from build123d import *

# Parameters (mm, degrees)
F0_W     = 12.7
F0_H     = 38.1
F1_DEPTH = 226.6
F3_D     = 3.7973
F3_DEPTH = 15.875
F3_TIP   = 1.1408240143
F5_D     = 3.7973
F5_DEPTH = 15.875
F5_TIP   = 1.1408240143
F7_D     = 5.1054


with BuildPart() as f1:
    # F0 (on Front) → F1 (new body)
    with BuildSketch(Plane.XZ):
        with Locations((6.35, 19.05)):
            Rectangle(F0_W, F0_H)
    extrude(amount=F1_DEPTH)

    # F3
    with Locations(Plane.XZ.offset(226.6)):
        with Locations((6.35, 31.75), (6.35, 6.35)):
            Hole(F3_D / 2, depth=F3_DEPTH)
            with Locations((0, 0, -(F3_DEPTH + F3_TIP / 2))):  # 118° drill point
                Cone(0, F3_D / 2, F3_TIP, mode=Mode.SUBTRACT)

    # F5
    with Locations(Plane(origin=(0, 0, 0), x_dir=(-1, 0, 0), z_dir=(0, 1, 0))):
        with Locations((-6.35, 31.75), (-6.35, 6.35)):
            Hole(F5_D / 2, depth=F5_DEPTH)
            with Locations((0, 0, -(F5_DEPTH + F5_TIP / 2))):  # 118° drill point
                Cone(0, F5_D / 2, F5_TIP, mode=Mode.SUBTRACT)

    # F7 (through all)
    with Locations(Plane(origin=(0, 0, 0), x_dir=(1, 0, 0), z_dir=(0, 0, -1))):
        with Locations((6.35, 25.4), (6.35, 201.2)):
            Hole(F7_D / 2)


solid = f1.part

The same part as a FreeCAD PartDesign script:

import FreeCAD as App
import Part
import Sketcher
from FreeCAD import Vector
Q = App.Units.Quantity

doc = App.newDocument("Part")
body = doc.addObject("PartDesign::Body", "Body")

# Sketch on XZ plane
sketch1 = body.newObject("Sketcher::SketchObject", "Sketch")
sketch1.AttachmentSupport = (doc.getObject("XZ_Plane"), [""])
sketch1.MapMode = "FlatFace"
sketch1.addGeometry([
    Part.LineSegment(Vector(0, 38.1, 0), Vector(0, 0, 0)),
    Part.LineSegment(Vector(0, 0, 0), Vector(12.7, 0, 0)),
    Part.LineSegment(Vector(12.7, 0, 0), Vector(12.7, 38.1, 0)),
    Part.LineSegment(Vector(12.7, 38.1, 0), Vector(0, 38.1, 0)),
], False)
sketch1.addConstraint([
    Sketcher.Constraint("Coincident", 0, 2, 1, 1),
    Sketcher.Constraint("Coincident", 1, 2, 2, 1),
    Sketcher.Constraint("Coincident", 2, 2, 3, 1),
    Sketcher.Constraint("Coincident", 3, 2, 0, 1),
    Sketcher.Constraint("Vertical", 0),
    Sketcher.Constraint("Horizontal", 1),
    Sketcher.Constraint("Vertical", 2),
    Sketcher.Constraint("Horizontal", 3),
    Sketcher.Constraint("Coincident", 0, 2, -1, 1),
    Sketcher.Constraint("DistanceX", 1, 1, 1, 2, Q("0.5 in")),
    Sketcher.Constraint("DistanceY", 0, 2, 0, 1, Q("1.5 in")),
])
pad1 = body.newObject("PartDesign::Pad", "Pad")
pad1.Profile = sketch1
pad1.Length = 226.6

# Sketch on XZ plane
sketch2 = body.newObject("Sketcher::SketchObject", "Sketch001")
sketch2.AttachmentSupport = (doc.getObject("XZ_Plane"), [""])
sketch2.MapMode = "FlatFace"
sketch2.AttachmentOffset = App.Placement(Vector(0, 0, 226.6), App.Rotation())
sketch2.addGeometry([
    Part.Circle(Vector(6.35, 31.75, 0), Vector(0, 0, 1), 1.89865),
    Part.Circle(Vector(6.35, 6.35, 0), Vector(0, 0, 1), 1.89865),
], False)
sketch2.addConstraint([
    Sketcher.Constraint("Equal", 0, 1),
    Sketcher.Constraint("Vertical", 0, 3, 1, 3),
    Sketcher.Constraint("DistanceY", 1, 3, 0, 3, Q("1 in")),
    Sketcher.Constraint("Diameter", 0, Q("0.1495 in")),
    Sketcher.Constraint("DistanceX", -1, 1, 0, 3, Q("0.25 in")),
    Sketcher.Constraint("DistanceY", -1, 1, 0, 3, Q("1.25 in")),
])
doc.recompute()
hole = body.newObject("PartDesign::Hole", "Hole")
hole.Profile = sketch2
hole.ThreadType = "None"
hole.Diameter = Q("0.1495 in")
hole.DepthType = "Dimension"
hole.Depth = Q("0.625 in")
hole.DrillPoint = "Angled"
hole.DrillPointAngle = 118

# Sketch on XZ plane
sketch3 = body.newObject("Sketcher::SketchObject", "Sketch002")
sketch3.AttachmentSupport = (doc.getObject("XZ_Plane"), [""])
sketch3.MapMode = "FlatFace"
sketch3.addGeometry([
    Part.Circle(Vector(6.35, 31.75, 0), Vector(0, 0, 1), 1.89865),
    Part.Circle(Vector(6.35, 6.35, 0), Vector(0, 0, 1), 1.89865),
], False)
sketch3.addConstraint([
    Sketcher.Constraint("Equal", 0, 1),
    Sketcher.Constraint("Vertical", 0, 3, 1, 3),
    Sketcher.Constraint("DistanceY", 1, 3, 0, 3, Q("1 in")),
    Sketcher.Constraint("Diameter", 0, Q("0.1495 in")),
    Sketcher.Constraint("DistanceX", -1, 1, 0, 3, Q("0.25 in")),
    Sketcher.Constraint("DistanceY", -1, 1, 0, 3, Q("1.25 in")),
])
doc.recompute()
hole2 = body.newObject("PartDesign::Hole", "Hole001")
hole2.Profile = sketch3
hole2.ThreadType = "None"
hole2.Diameter = Q("0.1495 in")
hole2.DepthType = "Dimension"
hole2.Depth = Q("0.625 in")
hole2.DrillPoint = "Angled"
hole2.DrillPointAngle = 118
hole2.Reversed = True

# Sketch on XY plane
sketch4 = body.newObject("Sketcher::SketchObject", "Sketch003")
sketch4.AttachmentSupport = (doc.getObject("XY_Plane"), [""])
sketch4.MapMode = "FlatFace"
sketch4.addGeometry([
    Part.Circle(Vector(6.35, -25.4, 0), Vector(0, 0, 1), 2.5527),
    Part.Circle(Vector(6.35, -201.2, 0), Vector(0, 0, 1), 2.5527),
], False)
sketch4.addConstraint([
    Sketcher.Constraint("Equal", 0, 1),
    Sketcher.Constraint("Vertical", 0, 3, 1, 3),
    Sketcher.Constraint("Diameter", 0, Q("0.201 in")),
    Sketcher.Constraint("DistanceY", 0, 3, -1, 1, Q("1 in")),
    Sketcher.Constraint("DistanceX", -1, 1, 0, 3, Q("0.25 in")),
    Sketcher.Constraint("DistanceY", 1, 3, -1, 1, Q("201.2 mm")),
])
doc.recompute()
hole3 = body.newObject("PartDesign::Hole", "Hole002")
hole3.Profile = sketch4
hole3.ThreadType = "None"
hole3.Diameter = Q("0.201 in")
hole3.DepthType = "ThroughAll"
hole3.Reversed = True

doc.recompute()
